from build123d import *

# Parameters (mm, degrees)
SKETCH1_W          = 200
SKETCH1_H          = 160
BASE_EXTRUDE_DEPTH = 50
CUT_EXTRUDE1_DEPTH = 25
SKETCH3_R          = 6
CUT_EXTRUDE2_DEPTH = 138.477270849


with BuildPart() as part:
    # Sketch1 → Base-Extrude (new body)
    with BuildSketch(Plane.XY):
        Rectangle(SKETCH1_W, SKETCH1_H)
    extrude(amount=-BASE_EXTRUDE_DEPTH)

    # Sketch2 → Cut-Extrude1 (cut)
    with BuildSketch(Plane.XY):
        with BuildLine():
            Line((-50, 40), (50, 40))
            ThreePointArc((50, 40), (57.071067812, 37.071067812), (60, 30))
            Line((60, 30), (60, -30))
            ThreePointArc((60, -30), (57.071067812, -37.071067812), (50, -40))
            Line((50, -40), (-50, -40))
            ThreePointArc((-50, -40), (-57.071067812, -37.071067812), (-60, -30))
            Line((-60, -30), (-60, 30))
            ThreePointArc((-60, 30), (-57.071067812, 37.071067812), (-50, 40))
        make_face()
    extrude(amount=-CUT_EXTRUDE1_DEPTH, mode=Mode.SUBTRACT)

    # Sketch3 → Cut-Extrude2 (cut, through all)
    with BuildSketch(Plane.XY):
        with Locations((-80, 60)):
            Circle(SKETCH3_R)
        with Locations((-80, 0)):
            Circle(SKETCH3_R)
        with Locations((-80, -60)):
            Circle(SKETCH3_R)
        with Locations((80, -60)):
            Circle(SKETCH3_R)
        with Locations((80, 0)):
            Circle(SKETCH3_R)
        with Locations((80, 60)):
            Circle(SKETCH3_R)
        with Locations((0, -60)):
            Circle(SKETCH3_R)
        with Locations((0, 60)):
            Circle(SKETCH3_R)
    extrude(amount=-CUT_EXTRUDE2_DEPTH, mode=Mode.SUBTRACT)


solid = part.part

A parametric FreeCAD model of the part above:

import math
import FreeCAD as App
import Part
import Sketcher
from FreeCAD import Vector

doc = App.newDocument("Part")
body = doc.addObject("PartDesign::Body", "Body")

# Sketch on XY plane
sketch1 = body.newObject("Sketcher::SketchObject", "Sketch")
sketch1.AttachmentSupport = (doc.getObject("XY_Plane"), [""])
sketch1.MapMode = "FlatFace"
sketch1.addGeometry(Part.LineSegment(Vector(-100, 80, 0), Vector(-100, -80, 0)), False)
sketch1.addGeometry(Part.LineSegment(Vector(-100, -80, 0), Vector(100, -80, 0)), False)
sketch1.addGeometry(Part.LineSegment(Vector(100, -80, 0), Vector(100, 80, 0)), False)
sketch1.addGeometry(Part.LineSegment(Vector(100, 80, 0), Vector(-100, 80, 0)), False)
sketch1.addConstraint(Sketcher.Constraint("Coincident", 0, 2, 1, 1))
sketch1.addConstraint(Sketcher.Constraint("Coincident", 1, 2, 2, 1))
sketch1.addConstraint(Sketcher.Constraint("Coincident", 2, 2, 3, 1))
sketch1.addConstraint(Sketcher.Constraint("Coincident", 3, 2, 0, 1))
sketch1.addConstraint(Sketcher.Constraint("Vertical", 0))
sketch1.addConstraint(Sketcher.Constraint("Horizontal", 1))
sketch1.addConstraint(Sketcher.Constraint("Vertical", 2))
sketch1.addConstraint(Sketcher.Constraint("Horizontal", 3))
sketch1.addConstraint(Sketcher.Constraint("Symmetric", 0, 2, 2, 2, -1, 1))
sketch1.addConstraint(Sketcher.Constraint("DistanceX", 1, 1, 1, 2, 200.0))
sketch1.addConstraint(Sketcher.Constraint("DistanceY", 0, 2, 0, 1, 160.0))
pad1 = body.newObject("PartDesign::Pad", "Pad")
pad1.Profile = sketch1
pad1.Length = 50
pad1.Reversed = True

# Sketch on XY plane
sketch2 = body.newObject("Sketcher::SketchObject", "Sketch001")
sketch2.AttachmentSupport = (doc.getObject("XY_Plane"), [""])
sketch2.MapMode = "FlatFace"
sketch2.addGeometry(Part.LineSegment(Vector(50, 40, 0), Vector(-50, 40, 0)), False)
sketch2.addGeometry(Part.ArcOfCircle(Part.Circle(Vector(-50, 30, 0), Vector(0, 0, 1), 10), math.radians(90), math.radians(180)), False)
sketch2.addGeometry(Part.LineSegment(Vector(-60, 30, 0), Vector(-60, -30, 0)), False)
sketch2.addGeometry(Part.ArcOfCircle(Part.Circle(Vector(-50, -30, 0), Vector(0, 0, 1), 10), math.radians(180), math.radians(270)), False)
sketch2.addGeometry(Part.LineSegment(Vector(-50, -40, 0), Vector(50, -40, 0)), False)
sketch2.addGeometry(Part.ArcOfCircle(Part.Circle(Vector(50, -30, 0), Vector(0, 0, 1), 10), math.radians(-90), math.radians(0)), False)
sketch2.addGeometry(Part.LineSegment(Vector(60, -30, 0), Vector(60, 30, 0)), False)
sketch2.addGeometry(Part.ArcOfCircle(Part.Circle(Vector(50, 30, 0), Vector(0, 0, 1), 10), math.radians(0), math.radians(90)), False)
sketch2.addConstraint(Sketcher.Constraint("Tangent", 0, 2, 1, 1))
sketch2.addConstraint(Sketcher.Constraint("Tangent", 1, 2, 2, 1))
sketch2.addConstraint(Sketcher.Constraint("Tangent", 2, 2, 3, 1))
sketch2.addConstraint(Sketcher.Constraint("Tangent", 3, 2, 4, 1))
sketch2.addConstraint(Sketcher.Constraint("Tangent", 4, 2, 5, 1))
sketch2.addConstraint(Sketcher.Constraint("Tangent", 5, 2, 6, 1))
sketch2.addConstraint(Sketcher.Constraint("Tangent", 6, 2, 7, 1))
sketch2.addConstraint(Sketcher.Constraint("Tangent", 7, 2, 0, 1))
sketch2.addConstraint(Sketcher.Constraint("Horizontal", 0))
sketch2.addConstraint(Sketcher.Constraint("Vertical", 2))
sketch2.addConstraint(Sketcher.Constraint("Horizontal", 4))
sketch2.addConstraint(Sketcher.Constraint("Vertical", 6))
sketch2.addConstraint(Sketcher.Constraint("Equal", 1, 3))
sketch2.addConstraint(Sketcher.Constraint("Equal", 3, 5))
sketch2.addConstraint(Sketcher.Constraint("Equal", 5, 7))
sketch2.addConstraint(Sketcher.Constraint("Symmetric", 1, 3, 5, 3, -1, 1))
sketch2.addConstraint(Sketcher.Constraint("Radius", 1, 10.0))
sketch2.addConstraint(Sketcher.Constraint("DistanceX", 0, 2, 0, 1, 100.0))
sketch2.addConstraint(Sketcher.Constraint("DistanceY", 2, 2, 2, 1, 60.0))
pocket1 = body.newObject("PartDesign::Pocket", "Pocket")
pocket1.Profile = sketch2
pocket1.Length = 25

# Sketch on XY plane
sketch3 = body.newObject("Sketcher::SketchObject", "Sketch002")
sketch3.AttachmentSupport = (doc.getObject("XY_Plane"), [""])
sketch3.MapMode = "FlatFace"
sketch3.addGeometry(Part.Circle(Vector(-80, 60, 0), Vector(0, 0, 1), 6), False)
sketch3.addGeometry(Part.Circle(Vector(-80, 0, 0), Vector(0, 0, 1), 6), False)
sketch3.addGeometry(Part.Circle(Vector(-80, -60, 0), Vector(0, 0, 1), 6), False)
sketch3.addGeometry(Part.Circle(Vector(80, -60, 0), Vector(0, 0, 1), 6), False)
sketch3.addGeometry(Part.Circle(Vector(80, 0, 0), Vector(0, 0, 1), 6), False)
sketch3.addGeometry(Part.Circle(Vector(80, 60, 0), Vector(0, 0, 1), 6), False)
sketch3.addGeometry(Part.Circle(Vector(0, -60, 0), Vector(0, 0, 1), 6), False)
sketch3.addGeometry(Part.Circle(Vector(0, 60, 0), Vector(0, 0, 1), 6), False)
sketch3.addConstraint(Sketcher.Constraint("Equal", 0, 1))
sketch3.addConstraint(Sketcher.Constraint("Equal", 1, 2))
sketch3.addConstraint(Sketcher.Constraint("Equal", 2, 3))
sketch3.addConstraint(Sketcher.Constraint("Equal", 3, 4))
sketch3.addConstraint(Sketcher.Constraint("Equal", 4, 5))
sketch3.addConstraint(Sketcher.Constraint("Equal", 5, 6))
sketch3.addConstraint(Sketcher.Constraint("Equal", 6, 7))
sketch3.addConstraint(Sketcher.Constraint("Symmetric", 0, 3, 3, 3, -1, 1))
sketch3.addConstraint(Sketcher.Constraint("Symmetric", 1, 3, 4, 3, -1, 1))
sketch3.addConstraint(Sketcher.Constraint("Symmetric", 2, 3, 5, 3, -1, 1))
sketch3.addConstraint(Sketcher.Constraint("Symmetric", 6, 3, 7, 3, -1, 1))
sketch3.addConstraint(Sketcher.Constraint("Symmetric", 2, 3, 3, 3, -2))
sketch3.addConstraint(Sketcher.Constraint("PointOnObject", 1, 3, -1))
sketch3.addConstraint(Sketcher.Constraint("PointOnObject", 6, 3, -2))
sketch3.addConstraint(Sketcher.Constraint("Horizontal", 3, 3, 6, 3))
sketch3.addConstraint(Sketcher.Constraint("Vertical", 0, 3, 1, 3))
sketch3.addConstraint(Sketcher.Constraint("Diameter", 0, 12.0))
sketch3.addConstraint(Sketcher.Constraint("DistanceX", 0, 3, -1, 1, 80.0))
sketch3.addConstraint(Sketcher.Constraint("DistanceY", -1, 1, 0, 3, 60.0))
pocket2 = body.newObject("PartDesign::Pocket", "Pocket001")
pocket2.Profile = sketch3
pocket2.Type = "ThroughAll"

doc.recompute()
